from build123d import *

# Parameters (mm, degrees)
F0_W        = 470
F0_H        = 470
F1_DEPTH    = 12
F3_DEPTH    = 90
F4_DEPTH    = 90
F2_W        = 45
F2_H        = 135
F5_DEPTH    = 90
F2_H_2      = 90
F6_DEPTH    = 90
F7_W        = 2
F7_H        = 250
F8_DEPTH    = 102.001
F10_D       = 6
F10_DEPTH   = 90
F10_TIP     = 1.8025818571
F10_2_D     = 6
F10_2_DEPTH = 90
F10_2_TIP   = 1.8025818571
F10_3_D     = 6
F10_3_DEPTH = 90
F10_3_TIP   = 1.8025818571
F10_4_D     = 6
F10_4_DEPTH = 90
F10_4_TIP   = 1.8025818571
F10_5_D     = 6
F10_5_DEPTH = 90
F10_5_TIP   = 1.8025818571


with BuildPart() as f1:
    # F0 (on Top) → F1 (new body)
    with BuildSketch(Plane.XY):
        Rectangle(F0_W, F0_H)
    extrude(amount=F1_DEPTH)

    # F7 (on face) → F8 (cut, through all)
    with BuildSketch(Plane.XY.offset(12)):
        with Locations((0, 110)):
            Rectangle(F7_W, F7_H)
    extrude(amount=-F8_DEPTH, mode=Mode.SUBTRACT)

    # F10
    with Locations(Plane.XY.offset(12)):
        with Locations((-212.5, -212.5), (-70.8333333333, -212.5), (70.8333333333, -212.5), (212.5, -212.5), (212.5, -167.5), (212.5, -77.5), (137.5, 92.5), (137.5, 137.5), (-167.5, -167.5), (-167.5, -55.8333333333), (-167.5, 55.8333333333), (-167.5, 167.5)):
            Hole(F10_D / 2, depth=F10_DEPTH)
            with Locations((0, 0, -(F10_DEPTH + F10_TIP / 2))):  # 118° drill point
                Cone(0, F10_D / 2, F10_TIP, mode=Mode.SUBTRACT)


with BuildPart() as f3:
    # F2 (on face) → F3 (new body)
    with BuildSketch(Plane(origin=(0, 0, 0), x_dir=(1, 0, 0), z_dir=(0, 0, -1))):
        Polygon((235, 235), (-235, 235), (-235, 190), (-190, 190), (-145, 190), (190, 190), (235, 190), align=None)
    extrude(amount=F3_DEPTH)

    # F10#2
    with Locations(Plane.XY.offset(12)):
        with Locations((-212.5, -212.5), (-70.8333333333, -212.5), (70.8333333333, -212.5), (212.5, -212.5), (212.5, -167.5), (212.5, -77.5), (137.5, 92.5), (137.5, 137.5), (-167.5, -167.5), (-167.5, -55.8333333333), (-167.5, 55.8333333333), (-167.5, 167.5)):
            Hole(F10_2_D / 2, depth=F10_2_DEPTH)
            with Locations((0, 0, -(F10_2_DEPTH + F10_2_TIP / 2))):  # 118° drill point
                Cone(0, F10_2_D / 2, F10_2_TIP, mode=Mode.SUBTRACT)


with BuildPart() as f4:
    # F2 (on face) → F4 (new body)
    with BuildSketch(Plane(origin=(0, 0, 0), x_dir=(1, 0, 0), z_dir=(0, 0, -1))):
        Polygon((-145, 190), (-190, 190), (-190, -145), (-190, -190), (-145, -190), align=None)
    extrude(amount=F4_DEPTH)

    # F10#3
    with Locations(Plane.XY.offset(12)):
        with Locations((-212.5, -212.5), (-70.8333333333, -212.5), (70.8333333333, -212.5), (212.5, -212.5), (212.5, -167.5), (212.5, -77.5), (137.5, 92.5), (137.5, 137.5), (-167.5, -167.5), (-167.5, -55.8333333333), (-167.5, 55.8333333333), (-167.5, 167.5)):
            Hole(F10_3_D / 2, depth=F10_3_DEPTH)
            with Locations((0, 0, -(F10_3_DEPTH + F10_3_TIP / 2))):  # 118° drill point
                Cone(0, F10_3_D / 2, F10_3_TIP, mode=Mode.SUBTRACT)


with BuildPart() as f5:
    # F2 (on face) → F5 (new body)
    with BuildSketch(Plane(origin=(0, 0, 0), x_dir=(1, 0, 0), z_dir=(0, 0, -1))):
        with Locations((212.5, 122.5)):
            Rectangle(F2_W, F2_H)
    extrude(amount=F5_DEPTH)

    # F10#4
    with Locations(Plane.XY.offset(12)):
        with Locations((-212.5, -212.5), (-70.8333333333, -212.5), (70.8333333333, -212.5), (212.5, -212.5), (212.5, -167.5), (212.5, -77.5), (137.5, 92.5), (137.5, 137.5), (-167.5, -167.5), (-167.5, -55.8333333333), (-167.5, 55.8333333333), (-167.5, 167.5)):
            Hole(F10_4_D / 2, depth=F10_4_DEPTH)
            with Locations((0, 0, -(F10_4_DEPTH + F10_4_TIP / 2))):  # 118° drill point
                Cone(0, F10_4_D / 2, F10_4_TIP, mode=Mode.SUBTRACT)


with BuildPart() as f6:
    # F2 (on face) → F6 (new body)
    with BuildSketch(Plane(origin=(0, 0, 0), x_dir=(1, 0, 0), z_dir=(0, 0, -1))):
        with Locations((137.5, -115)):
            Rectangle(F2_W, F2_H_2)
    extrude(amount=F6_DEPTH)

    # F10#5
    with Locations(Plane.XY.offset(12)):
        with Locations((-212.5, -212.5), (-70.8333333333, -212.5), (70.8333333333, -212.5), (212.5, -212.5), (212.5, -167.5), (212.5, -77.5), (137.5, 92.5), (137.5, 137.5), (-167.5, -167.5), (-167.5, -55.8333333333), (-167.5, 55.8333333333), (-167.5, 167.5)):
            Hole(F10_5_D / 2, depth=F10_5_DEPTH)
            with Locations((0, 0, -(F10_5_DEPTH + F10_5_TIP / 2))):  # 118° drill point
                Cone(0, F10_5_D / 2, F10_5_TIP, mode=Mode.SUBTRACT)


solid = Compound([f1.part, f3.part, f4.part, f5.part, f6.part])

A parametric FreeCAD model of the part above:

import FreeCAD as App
import Part
import Sketcher

V = App.Vector
Q = App.Units.Quantity

doc = App.newDocument("Part")
body = doc.addObject("PartDesign::Body", "Body")

sketch1 = body.newObject("Sketcher::SketchObject", "Sketch")
sketch1.AttachmentSupport = (doc.getObject("XY_Plane"), [""])
sketch1.MapMode = "FlatFace"
sketch1.addGeometry([
    Part.LineSegment(V(-235, 235, 0), V(-235, -235, 0)),
    Part.LineSegment(V(-235, -235, 0), V(235, -235, 0)),
    Part.LineSegment(V(235, -235, 0), V(235, 235, 0)),
    Part.LineSegment(V(235, 235, 0), V(-235, 235, 0)),
], False)
sketch1.addConstraint([
    Sketcher.Constraint("Coincident", 0, 2, 1, 1),
    Sketcher.Constraint("Coincident", 1, 2, 2, 1),
    Sketcher.Constraint("Coincident", 2, 2, 3, 1),
    Sketcher.Constraint("Coincident", 3, 2, 0, 1),
    Sketcher.Constraint("Vertical", 0),
    Sketcher.Constraint("Horizontal", 1),
    Sketcher.Constraint("Vertical", 2),
    Sketcher.Constraint("Horizontal", 3),
    Sketcher.Constraint("Symmetric", 0, 2, 2, 2, -1, 1),
    Sketcher.Constraint("Equal", 3, 0),
    Sketcher.Constraint("DistanceX", 1, 1, 1, 2, Q("470 mm")),
])
pad1 = body.newObject("PartDesign::Pad", "Pad")
pad1.Profile = sketch1
pad1.Length = 12

sketch2 = body.newObject("Sketcher::SketchObject", "Sketch001")
sketch2.AttachmentSupport = (doc.getObject("XY_Plane"), [""])
sketch2.MapMode = "FlatFace"
sketch2.AttachmentOffset = App.Placement(V(0, 0, 12), App.Rotation())
sketch2.addGeometry([
    Part.LineSegment(V(-1, 235, 0), V(-1, -15, 0)),
    Part.LineSegment(V(-1, -15, 0), V(1, -15, 0)),
    Part.LineSegment(V(1, -15, 0), V(1, 235, 0)),
    Part.LineSegment(V(1, 235, 0), V(-1, 235, 0)),
], False)
sketch2.addConstraint([
    Sketcher.Constraint("Coincident", 0, 2, 1, 1),
    Sketcher.Constraint("Coincident", 1, 2, 2, 1),
    Sketcher.Constraint("Coincident", 2, 2, 3, 1),
    Sketcher.Constraint("Coincident", 3, 2, 0, 1),
    Sketcher.Constraint("Vertical", 0),
    Sketcher.Constraint("Horizontal", 1),
    Sketcher.Constraint("Vertical", 2),
    Sketcher.Constraint("Horizontal", 3),
    Sketcher.Constraint("DistanceX", 1, 1, 1, 2, Q("2 mm")),
    Sketcher.Constraint("DistanceY", 0, 2, 0, 1, Q("250 mm")),
    Sketcher.Constraint("DistanceX", 0, 2, -1, 1, Q("1 mm")),
    Sketcher.Constraint("DistanceY", 0, 2, -1, 1, Q("15 mm")),
])
pocket1 = body.newObject("PartDesign::Pocket", "Pocket")
pocket1.Profile = sketch2
pocket1.Type = "ThroughAll"

sketch3 = body.newObject("Sketcher::SketchObject", "Sketch002")
sketch3.AttachmentSupport = (doc.getObject("XY_Plane"), [""])
sketch3.MapMode = "FlatFace"
sketch3.AttachmentOffset = App.Placement(V(0, 0, 12), App.Rotation())
sketch3.addGeometry([
    Part.Circle(V(-212.5, -212.5, 0), V(0, 0, 1), 3),
    Part.Circle(V(-70.8, -212.5, 0), V(0, 0, 1), 3),
    Part.Circle(V(70.8, -212.5, 0), V(0, 0, 1), 3),
    Part.Circle(V(212.5, -212.5, 0), V(0, 0, 1), 3),
    Part.Circle(V(212.5, -167.5, 0), V(0, 0, 1), 3),
    Part.Circle(V(212.5, -77.5, 0), V(0, 0, 1), 3),
    Part.Circle(V(137.5, 92.5, 0), V(0, 0, 1), 3),
    Part.Circle(V(137.5, 137.5, 0), V(0, 0, 1), 3),
    Part.Circle(V(-167.5, -167.5, 0), V(0, 0, 1), 3),
    Part.Circle(V(-167.5, -55.8, 0), V(0, 0, 1), 3),
    Part.Circle(V(-167.5, 55.8, 0), V(0, 0, 1), 3),
    Part.Circle(V(-167.5, 167.5, 0), V(0, 0, 1), 3),
], False)
sketch3.addConstraint([
    Sketcher.Constraint("Equal", 0, 1),
    Sketcher.Constraint("Equal", 1, 2),
    Sketcher.Constraint("Equal", 2, 3),
    Sketcher.Constraint("Equal", 3, 4),
    Sketcher.Constraint("Equal", 4, 5),
    Sketcher.Constraint("Equal", 5, 6),
    Sketcher.Constraint("Equal", 6, 7),
    Sketcher.Constraint("Equal", 7, 8),
    Sketcher.Constraint("Equal", 8, 9),
    Sketcher.Constraint("Equal", 9, 10),
    Sketcher.Constraint("Equal", 10, 11),
    Sketcher.Constraint("Symmetric", 1, 3, 2, 3, -2),
    Sketcher.Constraint("Symmetric", 0, 3, 3, 3, -2),
    Sketcher.Constraint("Symmetric", 9, 3, 10, 3, -1),
    Sketcher.Constraint("Symmetric", 8, 3, 11, 3, -1),
    Sketcher.Constraint("Horizontal", 0, 3, 1, 3),
    Sketcher.Constraint("Horizontal", 4, 3, 8, 3),
    Sketcher.Constraint("Vertical", 3, 3, 4, 3),
    Sketcher.Constraint("Vertical", 4, 3, 5, 3),
    Sketcher.Constraint("Vertical", 6, 3, 7, 3),
    Sketcher.Constraint("Vertical", 8, 3, 9, 3),
    Sketcher.Constraint("Diameter", 0, Q("6 mm")),
    Sketcher.Constraint("DistanceX", 0, 3, 3, 3, Q("425 mm")),
    Sketcher.Constraint("DistanceY", 3, 3, 4, 3, Q("45 mm")),
    Sketcher.Constraint("DistanceY", 4, 3, 5, 3, Q("90 mm")),
    Sketcher.Constraint("DistanceX", 6, 3, 5, 3, Q("75 mm")),
    Sketcher.Constraint("DistanceY", 5, 3, 6, 3, Q("170 mm")),
    Sketcher.Constraint("DistanceY", 6, 3, 7, 3, Q("45 mm")),
    Sketcher.Constraint("DistanceX", 0, 3, 8, 3, Q("45 mm")),
    Sketcher.Constraint("DistanceY", 7, 3, 11, 3, Q("30 mm")),
    Sketcher.Constraint("DistanceX", 1, 3, -1, 1, Q("70.833333 mm")),
    Sketcher.Constraint("DistanceY", 9, 3, -1, 1, Q("55.833333 mm")),
])
doc.recompute()
hole = body.newObject("PartDesign::Hole", "Hole")
hole.Profile = sketch3
hole.ThreadType = "None"
hole.Diameter = 6
hole.DepthType = "Dimension"
hole.Depth = 90
hole.DrillPoint = "Angled"
hole.DrillPointAngle = 118
body2 = doc.addObject("PartDesign::Body", "Body001")

sketch4 = body2.newObject("Sketcher::SketchObject", "Sketch003")
sketch4.AttachmentSupport = (doc.getObject("XY_Plane001"), [""])
sketch4.MapMode = "FlatFace"
sketch4.addGeometry([
    Part.LineSegment(V(235, -235, 0), V(-235, -235, 0)),
    Part.LineSegment(V(-235, -235, 0), V(-235, -190, 0)),
    Part.LineSegment(V(-235, -190, 0), V(235, -190, 0)),
    Part.LineSegment(V(235, -190, 0), V(235, -235, 0)),
], False)
sketch4.addConstraint([
    Sketcher.Constraint("Coincident", 0, 2, 1, 1),
    Sketcher.Constraint("Coincident", 1, 2, 2, 1),
    Sketcher.Constraint("Coincident", 2, 2, 3, 1),
    Sketcher.Constraint("Coincident", 3, 2, 0, 1),
    Sketcher.Constraint("Horizontal", 0),
    Sketcher.Constraint("Vertical", 1),
    Sketcher.Constraint("Horizontal", 2),
    Sketcher.Constraint("Vertical", 3),
    Sketcher.Constraint("DistanceX", 0, 2, 0, 1, Q("470 mm")),
    Sketcher.Constraint("DistanceY", 1, 1, 1, 2, Q("45 mm")),
    Sketcher.Constraint("DistanceX", 0, 2, -1, 1, Q("235 mm")),
    Sketcher.Constraint("DistanceY", 0, 2, -1, 1, Q("235 mm")),
])
pad2 = body2.newObject("PartDesign::Pad", "Pad001")
pad2.Profile = sketch4
pad2.Length = 90
pad2.Reversed = True

sketch5 = body2.newObject("Sketcher::SketchObject", "Sketch004")
sketch5.AttachmentSupport = (doc.getObject("XY_Plane001"), [""])
sketch5.MapMode = "FlatFace"
sketch5.AttachmentOffset = App.Placement(V(0, 0, 12), App.Rotation())
sketch5.addGeometry([
    Part.Circle(V(-212.5, -212.5, 0), V(0, 0, 1), 3),
    Part.Circle(V(-70.8, -212.5, 0), V(0, 0, 1), 3),
    Part.Circle(V(70.8, -212.5, 0), V(0, 0, 1), 3),
    Part.Circle(V(212.5, -212.5, 0), V(0, 0, 1), 3),
    Part.Circle(V(212.5, -167.5, 0), V(0, 0, 1), 3),
    Part.Circle(V(212.5, -77.5, 0), V(0, 0, 1), 3),
    Part.Circle(V(137.5, 92.5, 0), V(0, 0, 1), 3),
    Part.Circle(V(137.5, 137.5, 0), V(0, 0, 1), 3),
    Part.Circle(V(-167.5, -167.5, 0), V(0, 0, 1), 3),
    Part.Circle(V(-167.5, -55.8, 0), V(0, 0, 1), 3),
    Part.Circle(V(-167.5, 55.8, 0), V(0, 0, 1), 3),
    Part.Circle(V(-167.5, 167.5, 0), V(0, 0, 1), 3),
], False)
sketch5.addConstraint([
    Sketcher.Constraint("Equal", 0, 1),
    Sketcher.Constraint("Equal", 1, 2),
    Sketcher.Constraint("Equal", 2, 3),
    Sketcher.Constraint("Equal", 3, 4),
    Sketcher.Constraint("Equal", 4, 5),
    Sketcher.Constraint("Equal", 5, 6),
    Sketcher.Constraint("Equal", 6, 7),
    Sketcher.Constraint("Equal", 7, 8),
    Sketcher.Constraint("Equal", 8, 9),
    Sketcher.Constraint("Equal", 9, 10),
    Sketcher.Constraint("Equal", 10, 11),
    Sketcher.Constraint("Symmetric", 1, 3, 2, 3, -2),
    Sketcher.Constraint("Symmetric", 0, 3, 3, 3, -2),
    Sketcher.Constraint("Symmetric", 9, 3, 10, 3, -1),
    Sketcher.Constraint("Symmetric", 8, 3, 11, 3, -1),
    Sketcher.Constraint("Horizontal", 0, 3, 1, 3),
    Sketcher.Constraint("Horizontal", 4, 3, 8, 3),
    Sketcher.Constraint("Vertical", 3, 3, 4, 3),
    Sketcher.Constraint("Vertical", 4, 3, 5, 3),
    Sketcher.Constraint("Vertical", 6, 3, 7, 3),
    Sketcher.Constraint("Vertical", 8, 3, 9, 3),
    Sketcher.Constraint("Diameter", 0, Q("6 mm")),
    Sketcher.Constraint("DistanceX", 0, 3, 3, 3, Q("425 mm")),
    Sketcher.Constraint("DistanceY", 3, 3, 4, 3, Q("45 mm")),
    Sketcher.Constraint("DistanceY", 4, 3, 5, 3, Q("90 mm")),
    Sketcher.Constraint("DistanceX", 6, 3, 5, 3, Q("75 mm")),
    Sketcher.Constraint("DistanceY", 5, 3, 6, 3, Q("170 mm")),
    Sketcher.Constraint("DistanceY", 6, 3, 7, 3, Q("45 mm")),
    Sketcher.Constraint("DistanceX", 0, 3, 8, 3, Q("45 mm")),
    Sketcher.Constraint("DistanceY", 7, 3, 11, 3, Q("30 mm")),
    Sketcher.Constraint("DistanceX", 1, 3, -1, 1, Q("70.833333 mm")),
    Sketcher.Constraint("DistanceY", 9, 3, -1, 1, Q("55.833333 mm")),
])
doc.recompute()
hole2 = body2.newObject("PartDesign::Hole", "Hole001")
hole2.Profile = sketch5
hole2.ThreadType = "None"
hole2.Diameter = 6
hole2.DepthType = "Dimension"
hole2.Depth = 90
hole2.DrillPoint = "Angled"
hole2.DrillPointAngle = 118
body3 = doc.addObject("PartDesign::Body", "Body002")

sketch6 = body3.newObject("Sketcher::SketchObject", "Sketch005")
sketch6.AttachmentSupport = (doc.getObject("XY_Plane002"), [""])
sketch6.MapMode = "FlatFace"
sketch6.addGeometry([
    Part.LineSegment(V(-145, -190, 0), V(-190, -190, 0)),
    Part.LineSegment(V(-190, -190, 0), V(-190, 190, 0)),
    Part.LineSegment(V(-190, 190, 0), V(-145, 190, 0)),
    Part.LineSegment(V(-145, 190, 0), V(-145, -190, 0)),
], False)
sketch6.addConstraint([
    Sketcher.Constraint("Coincident", 0, 2, 1, 1),
    Sketcher.Constraint("Coincident", 1, 2, 2, 1),
    Sketcher.Constraint("Coincident", 2, 2, 3, 1),
    Sketcher.Constraint("Coincident", 3, 2, 0, 1),
    Sketcher.Constraint("Horizontal", 0),
    Sketcher.Constraint("Vertical", 1),
    Sketcher.Constraint("Horizontal", 2),
    Sketcher.Constraint("Vertical", 3),
    Sketcher.Constraint("DistanceX", 0, 2, 0, 1, Q("45 mm")),
    Sketcher.Constraint("DistanceY", 1, 1, 1, 2, Q("380 mm")),
    Sketcher.Constraint("DistanceX", 0, 2, -1, 1, Q("190 mm")),
    Sketcher.Constraint("DistanceY", 0, 2, -1, 1, Q("190 mm")),
])
pad3 = body3.newObject("PartDesign::Pad", "Pad002")
pad3.Profile = sketch6
pad3.Length = 90
pad3.Reversed = True

sketch7 = body3.newObject("Sketcher::SketchObject", "Sketch006")
sketch7.AttachmentSupport = (doc.getObject("XY_Plane002"), [""])
sketch7.MapMode = "FlatFace"
sketch7.AttachmentOffset = App.Placement(V(0, 0, 12), App.Rotation())
sketch7.addGeometry([
    Part.Circle(V(-212.5, -212.5, 0), V(0, 0, 1), 3),
    Part.Circle(V(-70.8, -212.5, 0), V(0, 0, 1), 3),
    Part.Circle(V(70.8, -212.5, 0), V(0, 0, 1), 3),
    Part.Circle(V(212.5, -212.5, 0), V(0, 0, 1), 3),
    Part.Circle(V(212.5, -167.5, 0), V(0, 0, 1), 3),
    Part.Circle(V(212.5, -77.5, 0), V(0, 0, 1), 3),
    Part.Circle(V(137.5, 92.5, 0), V(0, 0, 1), 3),
    Part.Circle(V(137.5, 137.5, 0), V(0, 0, 1), 3),
    Part.Circle(V(-167.5, -167.5, 0), V(0, 0, 1), 3),
    Part.Circle(V(-167.5, -55.8, 0), V(0, 0, 1), 3),
    Part.Circle(V(-167.5, 55.8, 0), V(0, 0, 1), 3),
    Part.Circle(V(-167.5, 167.5, 0), V(0, 0, 1), 3),
], False)
sketch7.addConstraint([
    Sketcher.Constraint("Equal", 0, 1),
    Sketcher.Constraint("Equal", 1, 2),
    Sketcher.Constraint("Equal", 2, 3),
    Sketcher.Constraint("Equal", 3, 4),
    Sketcher.Constraint("Equal", 4, 5),
    Sketcher.Constraint("Equal", 5, 6),
    Sketcher.Constraint("Equal", 6, 7),
    Sketcher.Constraint("Equal", 7, 8),
    Sketcher.Constraint("Equal", 8, 9),
    Sketcher.Constraint("Equal", 9, 10),
    Sketcher.Constraint("Equal", 10, 11),
    Sketcher.Constraint("Symmetric", 1, 3, 2, 3, -2),
    Sketcher.Constraint("Symmetric", 0, 3, 3, 3, -2),
    Sketcher.Constraint("Symmetric", 9, 3, 10, 3, -1),
    Sketcher.Constraint("Symmetric", 8, 3, 11, 3, -1),
    Sketcher.Constraint("Horizontal", 0, 3, 1, 3),
    Sketcher.Constraint("Horizontal", 4, 3, 8, 3),
    Sketcher.Constraint("Vertical", 3, 3, 4, 3),
    Sketcher.Constraint("Vertical", 4, 3, 5, 3),
    Sketcher.Constraint("Vertical", 6, 3, 7, 3),
    Sketcher.Constraint("Vertical", 8, 3, 9, 3),
    Sketcher.Constraint("Diameter", 0, Q("6 mm")),
    Sketcher.Constraint("DistanceX", 0, 3, 3, 3, Q("425 mm")),
    Sketcher.Constraint("DistanceY", 3, 3, 4, 3, Q("45 mm")),
    Sketcher.Constraint("DistanceY", 4, 3, 5, 3, Q("90 mm")),
    Sketcher.Constraint("DistanceX", 6, 3, 5, 3, Q("75 mm")),
    Sketcher.Constraint("DistanceY", 5, 3, 6, 3, Q("170 mm")),
    Sketcher.Constraint("DistanceY", 6, 3, 7, 3, Q("45 mm")),
    Sketcher.Constraint("DistanceX", 0, 3, 8, 3, Q("45 mm")),
    Sketcher.Constraint("DistanceY", 7, 3, 11, 3, Q("30 mm")),
    Sketcher.Constraint("DistanceX", 1, 3, -1, 1, Q("70.833333 mm")),
    Sketcher.Constraint("DistanceY", 9, 3, -1, 1, Q("55.833333 mm")),
])
doc.recompute()
hole3 = body3.newObject("PartDesign::Hole", "Hole002")
hole3.Profile = sketch7
hole3.ThreadType = "None"
hole3.Diameter = 6
hole3.DepthType = "Dimension"
hole3.Depth = 90
hole3.DrillPoint = "Angled"
hole3.DrillPointAngle = 118
body4 = doc.addObject("PartDesign::Body", "Body003")

sketch8 = body4.newObject("Sketcher::SketchObject", "Sketch007")
sketch8.AttachmentSupport = (doc.getObject("XY_Plane003"), [""])
sketch8.MapMode = "FlatFace"
sketch8.addGeometry([
    Part.LineSegment(V(190, -190, 0), V(190, -55, 0)),
    Part.LineSegment(V(190, -55, 0), V(235, -55, 0)),
    Part.LineSegment(V(235, -55, 0), V(235, -190, 0)),
    Part.LineSegment(V(235, -190, 0), V(190, -190, 0)),
], False)
sketch8.addConstraint([
    Sketcher.Constraint("Coincident", 0, 2, 1, 1),
    Sketcher.Constraint("Coincident", 1, 2, 2, 1),
    Sketcher.Constraint("Coincident", 2, 2, 3, 1),
    Sketcher.Constraint("Coincident", 3, 2, 0, 1),
    Sketcher.Constraint("Vertical", 0),
    Sketcher.Constraint("Horizontal", 1),
    Sketcher.Constraint("Vertical", 2),
    Sketcher.Constraint("Horizontal", 3),
    Sketcher.Constraint("DistanceX", 1, 1, 1, 2, Q("45 mm")),
    Sketcher.Constraint("DistanceY", 0, 1, 0, 2, Q("135 mm")),
    Sketcher.Constraint("DistanceX", -1, 1, 0, 2, Q("190 mm")),
    Sketcher.Constraint("DistanceY", 0, 2, -1, 1, Q("55 mm")),
])
pad4 = body4.newObject("PartDesign::Pad", "Pad003")
pad4.Profile = sketch8
pad4.Length = 90
pad4.Reversed = True

sketch9 = body4.newObject("Sketcher::SketchObject", "Sketch008")
sketch9.AttachmentSupport = (doc.getObject("XY_Plane003"), [""])
sketch9.MapMode = "FlatFace"
sketch9.AttachmentOffset = App.Placement(V(0, 0, 12), App.Rotation())
sketch9.addGeometry([
    Part.Circle(V(-212.5, -212.5, 0), V(0, 0, 1), 3),
    Part.Circle(V(-70.8, -212.5, 0), V(0, 0, 1), 3),
    Part.Circle(V(70.8, -212.5, 0), V(0, 0, 1), 3),
    Part.Circle(V(212.5, -212.5, 0), V(0, 0, 1), 3),
    Part.Circle(V(212.5, -167.5, 0), V(0, 0, 1), 3),
    Part.Circle(V(212.5, -77.5, 0), V(0, 0, 1), 3),
    Part.Circle(V(137.5, 92.5, 0), V(0, 0, 1), 3),
    Part.Circle(V(137.5, 137.5, 0), V(0, 0, 1), 3),
    Part.Circle(V(-167.5, -167.5, 0), V(0, 0, 1), 3),
    Part.Circle(V(-167.5, -55.8, 0), V(0, 0, 1), 3),
    Part.Circle(V(-167.5, 55.8, 0), V(0, 0, 1), 3),
    Part.Circle(V(-167.5, 167.5, 0), V(0, 0, 1), 3),
], False)
sketch9.addConstraint([
    Sketcher.Constraint("Equal", 0, 1),
    Sketcher.Constraint("Equal", 1, 2),
    Sketcher.Constraint("Equal", 2, 3),
    Sketcher.Constraint("Equal", 3, 4),
    Sketcher.Constraint("Equal", 4, 5),
    Sketcher.Constraint("Equal", 5, 6),
    Sketcher.Constraint("Equal", 6, 7),
    Sketcher.Constraint("Equal", 7, 8),
    Sketcher.Constraint("Equal", 8, 9),
    Sketcher.Constraint("Equal", 9, 10),
    Sketcher.Constraint("Equal", 10, 11),
    Sketcher.Constraint("Symmetric", 1, 3, 2, 3, -2),
    Sketcher.Constraint("Symmetric", 0, 3, 3, 3, -2),
    Sketcher.Constraint("Symmetric", 9, 3, 10, 3, -1),
    Sketcher.Constraint("Symmetric", 8, 3, 11, 3, -1),
    Sketcher.Constraint("Horizontal", 0, 3, 1, 3),
    Sketcher.Constraint("Horizontal", 4, 3, 8, 3),
    Sketcher.Constraint("Vertical", 3, 3, 4, 3),
    Sketcher.Constraint("Vertical", 4, 3, 5, 3),
    Sketcher.Constraint("Vertical", 6, 3, 7, 3),
    Sketcher.Constraint("Vertical", 8, 3, 9, 3),
    Sketcher.Constraint("Diameter", 0, Q("6 mm")),
    Sketcher.Constraint("DistanceX", 0, 3, 3, 3, Q("425 mm")),
    Sketcher.Constraint("DistanceY", 3, 3, 4, 3, Q("45 mm")),
    Sketcher.Constraint("DistanceY", 4, 3, 5, 3, Q("90 mm")),
    Sketcher.Constraint("DistanceX", 6, 3, 5, 3, Q("75 mm")),
    Sketcher.Constraint("DistanceY", 5, 3, 6, 3, Q("170 mm")),
    Sketcher.Constraint("DistanceY", 6, 3, 7, 3, Q("45 mm")),
    Sketcher.Constraint("DistanceX", 0, 3, 8, 3, Q("45 mm")),
    Sketcher.Constraint("DistanceY", 7, 3, 11, 3, Q("30 mm")),
    Sketcher.Constraint("DistanceX", 1, 3, -1, 1, Q("70.833333 mm")),
    Sketcher.Constraint("DistanceY", 9, 3, -1, 1, Q("55.833333 mm")),
])
doc.recompute()
hole4 = body4.newObject("PartDesign::Hole", "Hole003")
hole4.Profile = sketch9
hole4.ThreadType = "None"
hole4.Diameter = 6
hole4.DepthType = "Dimension"
hole4.Depth = 90
hole4.DrillPoint = "Angled"
hole4.DrillPointAngle = 118
body5 = doc.addObject("PartDesign::Body", "Body004")

sketch10 = body5.newObject("Sketcher::SketchObject", "Sketch009")
sketch10.AttachmentSupport = (doc.getObject("XY_Plane004"), [""])
sketch10.MapMode = "FlatFace"
sketch10.addGeometry([
    Part.LineSegment(V(115, 70, 0), V(115, 160, 0)),
    Part.LineSegment(V(115, 160, 0), V(160, 160, 0)),
    Part.LineSegment(V(160, 160, 0), V(160, 70, 0)),
    Part.LineSegment(V(160, 70, 0), V(115, 70, 0)),
], False)
sketch10.addConstraint([
    Sketcher.Constraint("Coincident", 0, 2, 1, 1),
    Sketcher.Constraint("Coincident", 1, 2, 2, 1),
    Sketcher.Constraint("Coincident", 2, 2, 3, 1),
    Sketcher.Constraint("Coincident", 3, 2, 0, 1),
    Sketcher.Constraint("Vertical", 0),
    Sketcher.Constraint("Horizontal", 1),
    Sketcher.Constraint("Vertical", 2),
    Sketcher.Constraint("Horizontal", 3),
    Sketcher.Constraint("DistanceX", 1, 1, 1, 2, Q("45 mm")),
    Sketcher.Constraint("DistanceY", 0, 1, 0, 2, Q("90 mm")),
    Sketcher.Constraint("DistanceX", -1, 1, 0, 2, Q("115 mm")),
    Sketcher.Constraint("DistanceY", -1, 1, 0, 2, Q("160 mm")),
])
pad5 = body5.newObject("PartDesign::Pad", "Pad004")
pad5.Profile = sketch10
pad5.Length = 90
pad5.Reversed = True

sketch11 = body5.newObject("Sketcher::SketchObject", "Sketch010")
sketch11.AttachmentSupport = (doc.getObject("XY_Plane004"), [""])
sketch11.MapMode = "FlatFace"
sketch11.AttachmentOffset = App.Placement(V(0, 0, 12), App.Rotation())
sketch11.addGeometry([
    Part.Circle(V(-212.5, -212.5, 0), V(0, 0, 1), 3),
    Part.Circle(V(-70.8, -212.5, 0), V(0, 0, 1), 3),
    Part.Circle(V(70.8, -212.5, 0), V(0, 0, 1), 3),
    Part.Circle(V(212.5, -212.5, 0), V(0, 0, 1), 3),
    Part.Circle(V(212.5, -167.5, 0), V(0, 0, 1), 3),
    Part.Circle(V(212.5, -77.5, 0), V(0, 0, 1), 3),
    Part.Circle(V(137.5, 92.5, 0), V(0, 0, 1), 3),
    Part.Circle(V(137.5, 137.5, 0), V(0, 0, 1), 3),
    Part.Circle(V(-167.5, -167.5, 0), V(0, 0, 1), 3),
    Part.Circle(V(-167.5, -55.8, 0), V(0, 0, 1), 3),
    Part.Circle(V(-167.5, 55.8, 0), V(0, 0, 1), 3),
    Part.Circle(V(-167.5, 167.5, 0), V(0, 0, 1), 3),
], False)
sketch11.addConstraint([
    Sketcher.Constraint("Equal", 0, 1),
    Sketcher.Constraint("Equal", 1, 2),
    Sketcher.Constraint("Equal", 2, 3),
    Sketcher.Constraint("Equal", 3, 4),
    Sketcher.Constraint("Equal", 4, 5),
    Sketcher.Constraint("Equal", 5, 6),
    Sketcher.Constraint("Equal", 6, 7),
    Sketcher.Constraint("Equal", 7, 8),
    Sketcher.Constraint("Equal", 8, 9),
    Sketcher.Constraint("Equal", 9, 10),
    Sketcher.Constraint("Equal", 10, 11),
    Sketcher.Constraint("Symmetric", 1, 3, 2, 3, -2),
    Sketcher.Constraint("Symmetric", 0, 3, 3, 3, -2),
    Sketcher.Constraint("Symmetric", 9, 3, 10, 3, -1),
    Sketcher.Constraint("Symmetric", 8, 3, 11, 3, -1),
    Sketcher.Constraint("Horizontal", 0, 3, 1, 3),
    Sketcher.Constraint("Horizontal", 4, 3, 8, 3),
    Sketcher.Constraint("Vertical", 3, 3, 4, 3),
    Sketcher.Constraint("Vertical", 4, 3, 5, 3),
    Sketcher.Constraint("Vertical", 6, 3, 7, 3),
    Sketcher.Constraint("Vertical", 8, 3, 9, 3),
    Sketcher.Constraint("Diameter", 0, Q("6 mm")),
    Sketcher.Constraint("DistanceX", 0, 3, 3, 3, Q("425 mm")),
    Sketcher.Constraint("DistanceY", 3, 3, 4, 3, Q("45 mm")),
    Sketcher.Constraint("DistanceY", 4, 3, 5, 3, Q("90 mm")),
    Sketcher.Constraint("DistanceX", 6, 3, 5, 3, Q("75 mm")),
    Sketcher.Constraint("DistanceY", 5, 3, 6, 3, Q("170 mm")),
    Sketcher.Constraint("DistanceY", 6, 3, 7, 3, Q("45 mm")),
    Sketcher.Constraint("DistanceX", 0, 3, 8, 3, Q("45 mm")),
    Sketcher.Constraint("DistanceY", 7, 3, 11, 3, Q("30 mm")),
    Sketcher.Constraint("DistanceX", 1, 3, -1, 1, Q("70.833333 mm")),
    Sketcher.Constraint("DistanceY", 9, 3, -1, 1, Q("55.833333 mm")),
])
doc.recompute()
hole5 = body5.newObject("PartDesign::Hole", "Hole004")
hole5.Profile = sketch11
hole5.ThreadType = "None"
hole5.Diameter = 6
hole5.DepthType = "Dimension"
hole5.Depth = 90
hole5.DrillPoint = "Angled"
hole5.DrillPointAngle = 118

doc.recompute()
